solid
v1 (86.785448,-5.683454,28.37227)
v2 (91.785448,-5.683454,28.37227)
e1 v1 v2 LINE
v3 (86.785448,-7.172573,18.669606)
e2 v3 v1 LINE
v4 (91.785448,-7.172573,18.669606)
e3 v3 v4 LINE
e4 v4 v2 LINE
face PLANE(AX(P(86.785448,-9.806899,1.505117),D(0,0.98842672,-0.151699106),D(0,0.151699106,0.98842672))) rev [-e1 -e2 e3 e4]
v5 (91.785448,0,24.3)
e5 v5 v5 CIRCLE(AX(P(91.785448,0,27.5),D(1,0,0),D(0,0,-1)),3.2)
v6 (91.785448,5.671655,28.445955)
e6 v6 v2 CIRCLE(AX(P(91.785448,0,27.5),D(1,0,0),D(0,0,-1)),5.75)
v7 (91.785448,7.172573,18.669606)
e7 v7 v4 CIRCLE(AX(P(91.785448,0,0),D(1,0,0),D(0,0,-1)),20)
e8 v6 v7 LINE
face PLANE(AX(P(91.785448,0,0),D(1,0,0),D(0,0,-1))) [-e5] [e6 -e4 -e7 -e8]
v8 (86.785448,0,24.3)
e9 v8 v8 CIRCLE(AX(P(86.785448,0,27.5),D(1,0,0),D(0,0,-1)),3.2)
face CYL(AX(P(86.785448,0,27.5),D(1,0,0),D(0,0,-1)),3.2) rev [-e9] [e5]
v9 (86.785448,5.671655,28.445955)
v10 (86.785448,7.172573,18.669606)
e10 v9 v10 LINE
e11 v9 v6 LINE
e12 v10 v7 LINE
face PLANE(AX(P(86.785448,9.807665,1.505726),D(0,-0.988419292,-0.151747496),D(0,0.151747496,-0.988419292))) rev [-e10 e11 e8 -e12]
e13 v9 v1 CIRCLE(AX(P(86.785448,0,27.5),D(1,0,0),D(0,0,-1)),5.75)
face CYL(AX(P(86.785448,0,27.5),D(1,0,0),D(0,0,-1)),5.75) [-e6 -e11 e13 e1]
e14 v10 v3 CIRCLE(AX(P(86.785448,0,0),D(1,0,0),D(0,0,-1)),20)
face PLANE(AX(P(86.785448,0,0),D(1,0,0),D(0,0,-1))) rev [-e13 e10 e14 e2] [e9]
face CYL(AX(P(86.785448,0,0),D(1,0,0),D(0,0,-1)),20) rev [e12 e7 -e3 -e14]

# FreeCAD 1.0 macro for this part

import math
import FreeCAD as App
import Part
import Sketcher
from FreeCAD import Vector

doc = App.newDocument("Part")
body = doc.addObject("PartDesign::Body", "Body")

sketch1 = body.newObject("Sketcher::SketchObject", "Sketch")
sketch1.AttachmentSupport = (doc.getObject("YZ_Plane"), [""])
sketch1.MapMode = "FlatFace"
sketch1.AttachmentOffset = App.Placement(Vector(0, 0, 91.785448), App.Rotation())
sketch1.addGeometry([
    Part.ArcOfCircle(Part.Circle(Vector(0, 27.5, 0), Vector(0, 0, 1), 5.8), math.radians(9), math.radians(171)),
    Part.LineSegment(Vector(-5.7, 28.4, 0), Vector(-7.2, 18.7, 0)),
    Part.ArcOfCircle(Part.Circle(Vector(0, 0, 0), Vector(0, 0, 1), 20), math.radians(69), math.radians(111)),
    Part.LineSegment(Vector(7.2, 18.7, 0), Vector(5.7, 28.4, 0)),
    Part.Circle(Vector(0, 27.5, 0), Vector(0, 0, 1), 3.2),
], False)
sketch1.addConstraint([
    Sketcher.Constraint("Tangent", 0, 2, 1, 1),
    Sketcher.Constraint("Coincident", 1, 2, 2, 2),
    Sketcher.Constraint("Coincident", 2, 1, 3, 1),
    Sketcher.Constraint("Coincident", 3, 2, 0, 1),
    Sketcher.Constraint("Coincident", 2, 3, -1, 1),
    Sketcher.Constraint("Coincident", 4, 3, 0, 3),
    Sketcher.Constraint("PointOnObject", 0, 3, -2),
    Sketcher.Constraint("Horizontal", 1, 2, 2, 1),
    Sketcher.Constraint("Radius", 2, 20.0),
    Sketcher.Constraint("Diameter", 4, 6.4),
    Sketcher.Constraint("Radius", 0, 5.75),
    Sketcher.Constraint("DistanceY", -1, 1, 0, 3, 27.5),
    Sketcher.Constraint("Distance", 1, 9.81627),
    Sketcher.Constraint("Distance", 3, 9.890892),
])
pad1 = body.newObject("PartDesign::Pad", "Pad")
pad1.Profile = sketch1
pad1.Length = 5
pad1.Reversed = True

doc.recompute()
